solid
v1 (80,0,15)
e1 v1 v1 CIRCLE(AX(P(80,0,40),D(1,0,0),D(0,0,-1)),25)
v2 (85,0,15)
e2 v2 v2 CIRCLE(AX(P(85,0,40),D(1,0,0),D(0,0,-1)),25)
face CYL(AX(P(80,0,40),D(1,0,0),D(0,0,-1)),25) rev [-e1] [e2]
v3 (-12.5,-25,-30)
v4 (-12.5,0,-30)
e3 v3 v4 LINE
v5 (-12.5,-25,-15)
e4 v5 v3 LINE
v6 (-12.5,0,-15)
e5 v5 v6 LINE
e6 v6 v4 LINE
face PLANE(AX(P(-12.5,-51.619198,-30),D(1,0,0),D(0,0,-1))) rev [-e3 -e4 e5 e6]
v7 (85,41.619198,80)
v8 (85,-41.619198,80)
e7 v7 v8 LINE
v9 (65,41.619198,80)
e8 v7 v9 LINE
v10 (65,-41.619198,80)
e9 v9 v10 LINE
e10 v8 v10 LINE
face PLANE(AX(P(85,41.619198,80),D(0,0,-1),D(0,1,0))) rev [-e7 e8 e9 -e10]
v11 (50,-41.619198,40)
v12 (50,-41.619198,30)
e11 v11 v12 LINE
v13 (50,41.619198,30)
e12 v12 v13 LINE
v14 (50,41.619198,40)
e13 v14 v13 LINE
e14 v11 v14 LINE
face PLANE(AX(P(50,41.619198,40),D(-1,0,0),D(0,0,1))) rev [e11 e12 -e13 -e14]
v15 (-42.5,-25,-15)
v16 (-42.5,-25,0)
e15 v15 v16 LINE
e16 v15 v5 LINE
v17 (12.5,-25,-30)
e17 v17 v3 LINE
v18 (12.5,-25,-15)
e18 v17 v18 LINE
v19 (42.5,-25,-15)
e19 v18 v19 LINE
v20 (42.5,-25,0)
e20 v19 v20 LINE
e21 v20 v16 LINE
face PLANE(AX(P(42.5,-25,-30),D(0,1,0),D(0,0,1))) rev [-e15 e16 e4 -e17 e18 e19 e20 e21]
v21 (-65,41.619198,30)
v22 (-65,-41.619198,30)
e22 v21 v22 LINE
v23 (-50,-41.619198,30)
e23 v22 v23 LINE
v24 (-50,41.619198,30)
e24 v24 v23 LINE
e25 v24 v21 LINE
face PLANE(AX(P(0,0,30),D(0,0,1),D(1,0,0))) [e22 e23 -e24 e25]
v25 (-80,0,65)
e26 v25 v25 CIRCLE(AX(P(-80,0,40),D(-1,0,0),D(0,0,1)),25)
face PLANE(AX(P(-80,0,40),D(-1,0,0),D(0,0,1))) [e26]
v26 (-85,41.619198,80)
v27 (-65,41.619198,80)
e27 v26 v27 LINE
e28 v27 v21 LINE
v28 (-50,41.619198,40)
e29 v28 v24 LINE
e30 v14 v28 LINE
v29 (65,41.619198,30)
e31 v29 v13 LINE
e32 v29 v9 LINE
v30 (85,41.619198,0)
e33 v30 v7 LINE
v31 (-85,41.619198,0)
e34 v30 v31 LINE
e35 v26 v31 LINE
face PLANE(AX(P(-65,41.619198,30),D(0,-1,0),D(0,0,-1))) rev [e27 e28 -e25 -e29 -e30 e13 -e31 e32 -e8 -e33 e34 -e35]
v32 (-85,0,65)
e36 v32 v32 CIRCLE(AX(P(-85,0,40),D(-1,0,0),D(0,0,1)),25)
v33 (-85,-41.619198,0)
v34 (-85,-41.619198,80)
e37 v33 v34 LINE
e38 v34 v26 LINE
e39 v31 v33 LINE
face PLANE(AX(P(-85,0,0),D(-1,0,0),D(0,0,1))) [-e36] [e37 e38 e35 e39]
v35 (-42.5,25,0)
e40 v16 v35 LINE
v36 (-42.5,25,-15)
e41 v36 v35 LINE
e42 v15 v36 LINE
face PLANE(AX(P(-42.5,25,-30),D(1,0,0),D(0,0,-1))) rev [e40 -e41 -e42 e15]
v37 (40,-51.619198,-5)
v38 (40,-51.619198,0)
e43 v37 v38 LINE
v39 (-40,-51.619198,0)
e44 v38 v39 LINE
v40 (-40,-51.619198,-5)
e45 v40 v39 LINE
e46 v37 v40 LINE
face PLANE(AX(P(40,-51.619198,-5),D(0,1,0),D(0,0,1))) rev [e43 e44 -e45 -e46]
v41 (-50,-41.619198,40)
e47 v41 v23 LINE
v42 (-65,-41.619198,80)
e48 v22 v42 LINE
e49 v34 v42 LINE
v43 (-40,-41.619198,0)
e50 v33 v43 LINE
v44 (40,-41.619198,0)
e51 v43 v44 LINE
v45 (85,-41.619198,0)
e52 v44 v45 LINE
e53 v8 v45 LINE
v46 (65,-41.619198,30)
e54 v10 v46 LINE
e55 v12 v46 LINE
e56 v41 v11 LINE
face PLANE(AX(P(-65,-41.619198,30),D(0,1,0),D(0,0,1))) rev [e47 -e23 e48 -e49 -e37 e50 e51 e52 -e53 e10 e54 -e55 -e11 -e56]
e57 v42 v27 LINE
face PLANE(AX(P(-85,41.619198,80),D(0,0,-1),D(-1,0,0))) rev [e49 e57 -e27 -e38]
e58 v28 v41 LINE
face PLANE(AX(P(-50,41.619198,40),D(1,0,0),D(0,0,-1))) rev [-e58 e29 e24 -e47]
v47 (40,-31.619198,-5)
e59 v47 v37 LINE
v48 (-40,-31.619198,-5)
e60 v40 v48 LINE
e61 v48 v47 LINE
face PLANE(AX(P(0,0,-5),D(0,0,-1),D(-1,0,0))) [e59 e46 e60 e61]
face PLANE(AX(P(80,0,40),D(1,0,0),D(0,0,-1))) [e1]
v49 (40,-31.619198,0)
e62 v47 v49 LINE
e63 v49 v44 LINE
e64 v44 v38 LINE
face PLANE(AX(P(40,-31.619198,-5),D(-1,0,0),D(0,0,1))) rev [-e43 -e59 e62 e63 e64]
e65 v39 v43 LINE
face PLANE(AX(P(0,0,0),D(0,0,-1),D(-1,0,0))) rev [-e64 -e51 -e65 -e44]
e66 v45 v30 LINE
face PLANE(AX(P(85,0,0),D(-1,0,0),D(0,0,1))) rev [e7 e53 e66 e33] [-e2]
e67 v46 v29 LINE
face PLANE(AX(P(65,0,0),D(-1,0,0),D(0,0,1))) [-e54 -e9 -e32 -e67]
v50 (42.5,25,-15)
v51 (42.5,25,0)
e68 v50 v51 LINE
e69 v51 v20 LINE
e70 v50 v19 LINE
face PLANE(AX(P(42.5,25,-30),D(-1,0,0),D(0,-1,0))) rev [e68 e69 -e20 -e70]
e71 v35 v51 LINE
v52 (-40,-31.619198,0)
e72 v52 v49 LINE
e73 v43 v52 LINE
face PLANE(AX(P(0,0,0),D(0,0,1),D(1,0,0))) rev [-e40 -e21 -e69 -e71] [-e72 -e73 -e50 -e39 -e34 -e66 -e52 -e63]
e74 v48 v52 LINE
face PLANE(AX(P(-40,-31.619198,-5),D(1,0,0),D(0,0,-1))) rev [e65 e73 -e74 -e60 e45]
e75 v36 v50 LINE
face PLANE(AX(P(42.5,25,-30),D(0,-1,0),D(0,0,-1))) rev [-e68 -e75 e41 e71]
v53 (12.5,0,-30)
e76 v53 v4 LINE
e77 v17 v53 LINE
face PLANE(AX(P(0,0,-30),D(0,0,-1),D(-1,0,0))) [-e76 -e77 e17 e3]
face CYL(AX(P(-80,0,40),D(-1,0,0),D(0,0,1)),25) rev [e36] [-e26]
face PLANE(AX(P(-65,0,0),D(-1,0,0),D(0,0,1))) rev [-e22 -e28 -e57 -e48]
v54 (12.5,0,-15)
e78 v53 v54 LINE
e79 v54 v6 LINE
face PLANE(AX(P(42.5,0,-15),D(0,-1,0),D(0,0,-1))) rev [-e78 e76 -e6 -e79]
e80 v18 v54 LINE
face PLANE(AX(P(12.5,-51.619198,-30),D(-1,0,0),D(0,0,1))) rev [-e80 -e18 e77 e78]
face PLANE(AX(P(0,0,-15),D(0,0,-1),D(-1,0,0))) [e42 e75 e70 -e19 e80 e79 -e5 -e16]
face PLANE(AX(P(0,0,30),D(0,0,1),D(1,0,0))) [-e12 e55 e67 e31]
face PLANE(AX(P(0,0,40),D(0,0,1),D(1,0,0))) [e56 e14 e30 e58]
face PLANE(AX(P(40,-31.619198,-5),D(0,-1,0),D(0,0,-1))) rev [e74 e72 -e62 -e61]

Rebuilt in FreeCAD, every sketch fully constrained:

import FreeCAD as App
import Part
import Sketcher
from FreeCAD import Vector

doc = App.newDocument("Part")
body = doc.addObject("PartDesign::Body", "Body")

sketch1 = doc.addObject("Sketcher::SketchObject", "Sketch")
body.addObject(sketch1)
sketch1.AttachmentSupport = (doc.XY_Plane, [""])
sketch1.MapMode = "FlatFace"
sketch1.addGeometry(Part.LineSegment(Vector(-65, 42, 0), Vector(-65, -42, 0)), False)
sketch1.addGeometry(Part.LineSegment(Vector(-65, -42, 0), Vector(65, -42, 0)), False)
sketch1.addGeometry(Part.LineSegment(Vector(65, -42, 0), Vector(65, 42, 0)), False)
sketch1.addGeometry(Part.LineSegment(Vector(65, 42, 0), Vector(-65, 42, 0)), False)
sketch1.addConstraint(Sketcher.Constraint("Coincident", 0, 2, 1, 1))
sketch1.addConstraint(Sketcher.Constraint("Coincident", 1, 2, 2, 1))
sketch1.addConstraint(Sketcher.Constraint("Coincident", 2, 2, 3, 1))
sketch1.addConstraint(Sketcher.Constraint("Coincident", 3, 2, 0, 1))
sketch1.addConstraint(Sketcher.Constraint("Vertical", 0))
sketch1.addConstraint(Sketcher.Constraint("Horizontal", 1))
sketch1.addConstraint(Sketcher.Constraint("Vertical", 2))
sketch1.addConstraint(Sketcher.Constraint("Horizontal", 3))
sketch1.addConstraint(Sketcher.Constraint("Symmetric", 0, 2, 2, 2, -1, 1))
sketch1.addConstraint(Sketcher.Constraint("DistanceX", 1, 1, 1, 2, 130.0))
sketch1.addConstraint(Sketcher.Constraint("DistanceY", 0, 2, -1, 1, 41.619198))
pad1 = doc.addObject("PartDesign::Pad", "Pad")
body.addObject(pad1)
pad1.Profile = sketch1
pad1.Length = 30

sketch2 = doc.addObject("Sketcher::SketchObject", "Sketch001")
body.addObject(sketch2)
sketch2.AttachmentSupport = (doc.XY_Plane, [""])
sketch2.MapMode = "FlatFace"
sketch2.AttachmentOffset = App.Placement(Vector(0, 0, 30), App.Rotation())
sketch2.addGeometry(Part.LineSegment(Vector(-50, 42, 0), Vector(-50, -42, 0)), False)
sketch2.addGeometry(Part.LineSegment(Vector(-50, -42, 0), Vector(50, -42, 0)), False)
sketch2.addGeometry(Part.LineSegment(Vector(50, -42, 0), Vector(50, 42, 0)), False)
sketch2.addGeometry(Part.LineSegment(Vector(50, 42, 0), Vector(-50, 42, 0)), False)
sketch2.addConstraint(Sketcher.Constraint("Coincident", 0, 2, 1, 1))
sketch2.addConstraint(Sketcher.Constraint("Coincident", 1, 2, 2, 1))
sketch2.addConstraint(Sketcher.Constraint("Coincident", 2, 2, 3, 1))
sketch2.addConstraint(Sketcher.Constraint("Coincident", 3, 2, 0, 1))
sketch2.addConstraint(Sketcher.Constraint("Vertical", 0))
sketch2.addConstraint(Sketcher.Constraint("Horizontal", 1))
sketch2.addConstraint(Sketcher.Constraint("Vertical", 2))
sketch2.addConstraint(Sketcher.Constraint("Horizontal", 3))
sketch2.addConstraint(Sketcher.Constraint("Symmetric", 0, 2, 2, 2, -1, 1))
sketch2.addConstraint(Sketcher.Constraint("DistanceX", 1, 1, 1, 2, 100.0))
sketch2.addConstraint(Sketcher.Constraint("DistanceY", 0, 2, -1, 1, 41.619198))
pad2 = doc.addObject("PartDesign::Pad", "Pad001")
body.addObject(pad2)
pad2.Profile = sketch2
pad2.Length = 10

sketch3 = doc.addObject("Sketcher::SketchObject", "Sketch002")
body.addObject(sketch3)
sketch3.AttachmentSupport = (doc.YZ_Plane, [""])
sketch3.MapMode = "FlatFace"
sketch3.AttachmentOffset = App.Placement(Vector(0, 0, -65), App.Rotation())
sketch3.addGeometry(Part.LineSegment(Vector(42, 0, 0), Vector(-42, 0, 0)), False)
sketch3.addGeometry(Part.LineSegment(Vector(-42, 0, 0), Vector(-42, 80, 0)), False)
sketch3.addGeometry(Part.LineSegment(Vector(-42, 80, 0), Vector(42, 80, 0)), False)
sketch3.addGeometry(Part.LineSegment(Vector(42, 80, 0), Vector(42, 0, 0)), False)
sketch3.addConstraint(Sketcher.Constraint("Coincident", 0, 2, 1, 1))
sketch3.addConstraint(Sketcher.Constraint("Coincident", 1, 2, 2, 1))
sketch3.addConstraint(Sketcher.Constraint("Coincident", 2, 2, 3, 1))
sketch3.addConstraint(Sketcher.Constraint("Coincident", 3, 2, 0, 1))
sketch3.addConstraint(Sketcher.Constraint("Horizontal", 0))
sketch3.addConstraint(Sketcher.Constraint("Vertical", 1))
sketch3.addConstraint(Sketcher.Constraint("Horizontal", 2))
sketch3.addConstraint(Sketcher.Constraint("Vertical", 3))
sketch3.addConstraint(Sketcher.Constraint("Symmetric", 0, 2, 3, 2, -1, 1))
sketch3.addConstraint(Sketcher.Constraint("DistanceY", 1, 1, 1, 2, 80.0))
sketch3.addConstraint(Sketcher.Constraint("DistanceX", 0, 2, -1, 1, 41.619198))
pad3 = doc.addObject("PartDesign::Pad", "Pad002")
body.addObject(pad3)
pad3.Profile = sketch3
pad3.Length = 20
pad3.Reversed = True

sketch4 = doc.addObject("Sketcher::SketchObject", "Sketch003")
body.addObject(sketch4)
sketch4.AttachmentSupport = (doc.YZ_Plane, [""])
sketch4.MapMode = "FlatFace"
sketch4.AttachmentOffset = App.Placement(Vector(0, 0, -85), App.Rotation())
sketch4.addGeometry(Part.Circle(Vector(0, 40, 0), Vector(0, 0, 1), 25), False)
sketch4.addConstraint(Sketcher.Constraint("PointOnObject", 0, 3, -2))
sketch4.addConstraint(Sketcher.Constraint("Diameter", 0, 50.0))
sketch4.addConstraint(Sketcher.Constraint("DistanceY", -1, 1, 0, 3, 40.0))
pocket1 = doc.addObject("PartDesign::Pocket", "Pocket")
body.addObject(pocket1)
pocket1.Profile = sketch4
pocket1.Length = 5
pocket1.Reversed = True

sketch5 = doc.addObject("Sketcher::SketchObject", "Sketch004")
body.addObject(sketch5)
sketch5.AttachmentSupport = (doc.YZ_Plane, [""])
sketch5.MapMode = "FlatFace"
sketch5.AttachmentOffset = App.Placement(Vector(0, 0, 65), App.Rotation())
sketch5.addGeometry(Part.LineSegment(Vector(42, 80, 0), Vector(-42, 80, 0)), False)
sketch5.addGeometry(Part.LineSegment(Vector(-42, 80, 0), Vector(-42, 0, 0)), False)
sketch5.addGeometry(Part.LineSegment(Vector(-42, 0, 0), Vector(42, 0, 0)), False)
sketch5.addGeometry(Part.LineSegment(Vector(42, 0, 0), Vector(42, 80, 0)), False)
sketch5.addConstraint(Sketcher.Constraint("Coincident", 0, 2, 1, 1))
sketch5.addConstraint(Sketcher.Constraint("Coincident", 1, 2, 2, 1))
sketch5.addConstraint(Sketcher.Constraint("Coincident", 2, 2, 3, 1))
sketch5.addConstraint(Sketcher.Constraint("Coincident", 3, 2, 0, 1))
sketch5.addConstraint(Sketcher.Constraint("Horizontal", 0))
sketch5.addConstraint(Sketcher.Constraint("Vertical", 1))
sketch5.addConstraint(Sketcher.Constraint("Horizontal", 2))
sketch5.addConstraint(Sketcher.Constraint("Vertical", 3))
sketch5.addConstraint(Sketcher.Constraint("Symmetric", 1, 2, 2, 2, -1, 1))
sketch5.addConstraint(Sketcher.Constraint("DistanceY", 1, 2, 1, 1, 80.0))
sketch5.addConstraint(Sketcher.Constraint("DistanceX", 0, 2, -1, 1, 41.619198))
pad4 = doc.addObject("PartDesign::Pad", "Pad003")
body.addObject(pad4)
pad4.Profile = sketch5
pad4.Length = 20

sketch6 = doc.addObject("Sketcher::SketchObject", "Sketch005")
body.addObject(sketch6)
sketch6.AttachmentSupport = (doc.YZ_Plane, [""])
sketch6.MapMode = "FlatFace"
sketch6.AttachmentOffset = App.Placement(Vector(0, 0, 80), App.Rotation())
sketch6.addGeometry(Part.Circle(Vector(0, 40, 0), Vector(0, 0, 1), 25), False)
sketch6.addConstraint(Sketcher.Constraint("PointOnObject", 0, 3, -2))
sketch6.addConstraint(Sketcher.Constraint("Diameter", 0, 50.0))
sketch6.addConstraint(Sketcher.Constraint("DistanceY", -1, 1, 0, 3, 40.0))
pocket2 = doc.addObject("PartDesign::Pocket", "Pocket001")
body.addObject(pocket2)
pocket2.Profile = sketch6
pocket2.Length = 5
pocket2.Reversed = True

sketch7 = doc.addObject("Sketcher::SketchObject", "Sketch006")
body.addObject(sketch7)
sketch7.AttachmentSupport = (doc.XY_Plane, [""])
sketch7.MapMode = "FlatFace"
sketch7.addGeometry(Part.LineSegment(Vector(40, -32, 0), Vector(40, -52, 0)), False)
sketch7.addGeometry(Part.LineSegment(Vector(40, -52, 0), Vector(-40, -52, 0)), False)
sketch7.addGeometry(Part.LineSegment(Vector(-40, -52, 0), Vector(-40, -32, 0)), False)
sketch7.addGeometry(Part.LineSegment(Vector(-40, -32, 0), Vector(40, -32, 0)), False)
sketch7.addConstraint(Sketcher.Constraint("Coincident", 0, 2, 1, 1))
sketch7.addConstraint(Sketcher.Constraint("Coincident", 1, 2, 2, 1))
sketch7.addConstraint(Sketcher.Constraint("Coincident", 2, 2, 3, 1))
sketch7.addConstraint(Sketcher.Constraint("Coincident", 3, 2, 0, 1))
sketch7.addConstraint(Sketcher.Constraint("Vertical", 0))
sketch7.addConstraint(Sketcher.Constraint("Horizontal", 1))
sketch7.addConstraint(Sketcher.Constraint("Vertical", 2))
sketch7.addConstraint(Sketcher.Constraint("Horizontal", 3))
sketch7.addConstraint(Sketcher.Constraint("DistanceX", 1, 2, 1, 1, 80.0))
sketch7.addConstraint(Sketcher.Constraint("DistanceY", 0, 2, 0, 1, 20.0))
sketch7.addConstraint(Sketcher.Constraint("DistanceX", -1, 1, 0, 2, 40.0))
sketch7.addConstraint(Sketcher.Constraint("DistanceY", 0, 2, -1, 1, 51.619198))
pad5 = doc.addObject("PartDesign::Pad", "Pad004")
body.addObject(pad5)
pad5.Profile = sketch7
pad5.Length = 5
pad5.Reversed = True

sketch8 = doc.addObject("Sketcher::SketchObject", "Sketch007")
body.addObject(sketch8)
sketch8.AttachmentSupport = (doc.XY_Plane, [""])
sketch8.MapMode = "FlatFace"
sketch8.addGeometry(Part.LineSegment(Vector(42, 25, 0), Vector(42, -25, 0)), False)
sketch8.addGeometry(Part.LineSegment(Vector(42, -25, 0), Vector(-42, -25, 0)), False)
sketch8.addGeometry(Part.LineSegment(Vector(-42, -25, 0), Vector(-42, 25, 0)), False)
sketch8.addGeometry(Part.LineSegment(Vector(-42, 25, 0), Vector(42, 25, 0)), False)
sketch8.addConstraint(Sketcher.Constraint("Coincident", 0, 2, 1, 1))
sketch8.addConstraint(Sketcher.Constraint("Coincident", 1, 2, 2, 1))
sketch8.addConstraint(Sketcher.Constraint("Coincident", 2, 2, 3, 1))
sketch8.addConstraint(Sketcher.Constraint("Coincident", 3, 2, 0, 1))
sketch8.addConstraint(Sketcher.Constraint("Vertical", 0))
sketch8.addConstraint(Sketcher.Constraint("Horizontal", 1))
sketch8.addConstraint(Sketcher.Constraint("Vertical", 2))
sketch8.addConstraint(Sketcher.Constraint("Horizontal", 3))
sketch8.addConstraint(Sketcher.Constraint("Symmetric", 0, 2, 2, 2, -1, 1))
sketch8.addConstraint(Sketcher.Constraint("DistanceX", 1, 2, 1, 1, 85.0))
sketch8.addConstraint(Sketcher.Constraint("DistanceY", 0, 2, 0, 1, 50.0))
pad6 = doc.addObject("PartDesign::Pad", "Pad005")
body.addObject(pad6)
pad6.Profile = sketch8
pad6.Length = 30
pad6.Reversed = True

sketch9 = doc.addObject("Sketcher::SketchObject", "Sketch008")
body.addObject(sketch9)
sketch9.AttachmentSupport = (doc.XY_Plane, [""])
sketch9.MapMode = "FlatFace"
sketch9.AttachmentOffset = App.Placement(Vector(0, 0, -30), App.Rotation())
sketch9.addGeometry(Part.LineSegment(Vector(42, 25, 0), Vector(42, 0, 0)), False)
sketch9.addGeometry(Part.LineSegment(Vector(42, 0, 0), Vector(-42, 0, 0)), False)
sketch9.addGeometry(Part.LineSegment(Vector(-42, 0, 0), Vector(-42, 25, 0)), False)
sketch9.addGeometry(Part.LineSegment(Vector(-42, 25, 0), Vector(42, 25, 0)), False)
sketch9.addConstraint(Sketcher.Constraint("Coincident", 0, 2, 1, 1))
sketch9.addConstraint(Sketcher.Constraint("Coincident", 1, 2, 2, 1))
sketch9.addConstraint(Sketcher.Constraint("Coincident", 2, 2, 3, 1))
sketch9.addConstraint(Sketcher.Constraint("Coincident", 3, 2, 0, 1))
sketch9.addConstraint(Sketcher.Constraint("Vertical", 0))
sketch9.addConstraint(Sketcher.Constraint("Horizontal", 1))
sketch9.addConstraint(Sketcher.Constraint("Vertical", 2))
sketch9.addConstraint(Sketcher.Constraint("Horizontal", 3))
sketch9.addConstraint(Sketcher.Constraint("Symmetric", 0, 2, 1, 2, -1, 1))
sketch9.addConstraint(Sketcher.Constraint("DistanceX", 1, 2, 1, 1, 85.0))
sketch9.addConstraint(Sketcher.Constraint("DistanceY", 0, 2, 0, 1, 25.0))
pocket3 = doc.addObject("PartDesign::Pocket", "Pocket002")
body.addObject(pocket3)
pocket3.Profile = sketch9
pocket3.Length = 15
pocket3.Reversed = True

sketch10 = doc.addObject("Sketcher::SketchObject", "Sketch009")
body.addObject(sketch10)
sketch10.AttachmentSupport = (doc.XZ_Plane, [""])
sketch10.MapMode = "FlatFace"
sketch10.addGeometry(Part.LineSegment(Vector(-42, -30, 0), Vector(-42, -15, 0)), False)
sketch10.addGeometry(Part.LineSegment(Vector(-42, -15, 0), Vector(-12, -15, 0)), False)
sketch10.addGeometry(Part.LineSegment(Vector(-12, -15, 0), Vector(-12, -30, 0)), False)
sketch10.addGeometry(Part.LineSegment(Vector(-12, -30, 0), Vector(-42, -30, 0)), False)
sketch10.addGeometry(Part.LineSegment(Vector(12, -30, 0), Vector(12, -15, 0)), False)
sketch10.addGeometry(Part.LineSegment(Vector(12, -15, 0), Vector(42, -15, 0)), False)
sketch10.addGeometry(Part.LineSegment(Vector(42, -15, 0), Vector(42, -30, 0)), False)
sketch10.addGeometry(Part.LineSegment(Vector(42, -30, 0), Vector(12, -30, 0)), False)
sketch10.addConstraint(Sketcher.Constraint("Coincident", 0, 2, 1, 1))
sketch10.addConstraint(Sketcher.Constraint("Coincident", 1, 2, 2, 1))
sketch10.addConstraint(Sketcher.Constraint("Coincident", 2, 2, 3, 1))
sketch10.addConstraint(Sketcher.Constraint("Coincident", 3, 2, 0, 1))
sketch10.addConstraint(Sketcher.Constraint("Coincident", 4, 2, 5, 1))
sketch10.addConstraint(Sketcher.Constraint("Coincident", 5, 2, 6, 1))
sketch10.addConstraint(Sketcher.Constraint("Coincident", 6, 2, 7, 1))
sketch10.addConstraint(Sketcher.Constraint("Coincident", 7, 2, 4, 1))
sketch10.addConstraint(Sketcher.Constraint("Vertical", 0))
sketch10.addConstraint(Sketcher.Constraint("Horizontal", 1))
sketch10.addConstraint(Sketcher.Constraint("Vertical", 2))
sketch10.addConstraint(Sketcher.Constraint("Horizontal", 3))
sketch10.addConstraint(Sketcher.Constraint("Vertical", 4))
sketch10.addConstraint(Sketcher.Constraint("Horizontal", 5))
sketch10.addConstraint(Sketcher.Constraint("Vertical", 6))
sketch10.addConstraint(Sketcher.Constraint("Horizontal", 7))
sketch10.addConstraint(Sketcher.Constraint("Symmetric", 1, 2, 4, 2, -2))
sketch10.addConstraint(Sketcher.Constraint("Symmetric", 3, 2, 6, 2, -2))
sketch10.addConstraint(Sketcher.Constraint("DistanceX", 1, 1, 1, 2, 30.0))
sketch10.addConstraint(Sketcher.Constraint("DistanceY", 0, 1, 0, 2, 15.0))
sketch10.addConstraint(Sketcher.Constraint("DistanceY", 0, 2, -1, 1, 15.0))
sketch10.addConstraint(Sketcher.Constraint("DistanceX", 1, 2, 4, 2, 25.0))
pocket4 = doc.addObject("PartDesign::Pocket", "Pocket003")
body.addObject(pocket4)
pocket4.Profile = sketch10
pocket4.Type = "ThroughAll"
pocket4.Reversed = True

doc.recompute()
